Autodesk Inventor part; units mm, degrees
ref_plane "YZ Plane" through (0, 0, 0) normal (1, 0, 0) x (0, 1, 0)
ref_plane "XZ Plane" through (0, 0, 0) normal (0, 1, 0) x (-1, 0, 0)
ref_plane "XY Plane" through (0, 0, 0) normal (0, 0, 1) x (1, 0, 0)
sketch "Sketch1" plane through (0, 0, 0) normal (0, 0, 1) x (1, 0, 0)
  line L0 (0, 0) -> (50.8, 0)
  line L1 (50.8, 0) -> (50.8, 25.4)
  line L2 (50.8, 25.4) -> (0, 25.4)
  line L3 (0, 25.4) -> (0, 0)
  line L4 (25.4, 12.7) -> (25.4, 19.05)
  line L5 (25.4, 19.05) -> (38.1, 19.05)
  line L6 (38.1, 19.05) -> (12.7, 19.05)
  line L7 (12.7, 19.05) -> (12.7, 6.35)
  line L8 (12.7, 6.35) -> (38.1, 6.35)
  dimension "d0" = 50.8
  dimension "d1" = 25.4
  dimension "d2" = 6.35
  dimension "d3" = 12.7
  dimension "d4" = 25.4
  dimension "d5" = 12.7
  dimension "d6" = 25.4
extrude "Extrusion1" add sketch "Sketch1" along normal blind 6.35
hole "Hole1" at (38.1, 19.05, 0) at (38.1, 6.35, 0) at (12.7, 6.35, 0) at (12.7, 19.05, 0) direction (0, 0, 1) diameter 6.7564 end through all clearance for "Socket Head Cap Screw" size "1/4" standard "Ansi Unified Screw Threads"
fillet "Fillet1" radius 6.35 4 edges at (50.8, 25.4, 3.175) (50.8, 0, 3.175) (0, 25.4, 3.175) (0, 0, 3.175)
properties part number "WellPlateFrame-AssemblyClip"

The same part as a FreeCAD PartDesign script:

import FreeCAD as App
import Part
import Sketcher
Q = App.Units.Quantity


def edges_at(feature, points):
    """Names of the edges that pass closest to the given points."""
    edges = feature.Shape.Edges
    near = lambda p: min(range(len(edges)), key=lambda i: edges[i].distToShape(Part.Vertex(*p))[0])
    return sorted({f"Edge{near(p) + 1}" for p in points})


def add_polygon(sketch, points):
    """Adds a closed chain of lines whose ends are joined by coincident constraints."""
    first, n = sketch.GeometryCount, len(points)
    for a, b in zip(points, points[1:] + points[:1]):
        sketch.addGeometry(Part.LineSegment(App.Vector(*a, 0), App.Vector(*b, 0)), False)
    for i in range(n):
        sketch.addConstraint(Sketcher.Constraint("Coincident", first + i, 2, first + (i + 1) % n, 1))

doc = App.newDocument("Part")
params = doc.addObject("Spreadsheet::Sheet", "Params")
for row, (alias, value) in enumerate([
    ("sketch1_width", "2 in"),
    ("sketch1_height", "1 in"),
    ("pad1_length", "0.25 in"),
    ("sketch2_diameter", "0.266 in"),
    ("hole_diameter", "0.266 in"),
    ("fillet_radius", "0.25 in"),
], start=1):
    params.set(f"A{row}", alias)
    params.set(f"B{row}", "=" + value)
    params.setAlias(f"B{row}", alias)

body = doc.addObject("PartDesign::Body", "Body")

# Sketch on XY plane
sketch1 = doc.addObject("Sketcher::SketchObject", "Sketch")
body.addObject(sketch1)
sketch1.AttachmentSupport = (doc.XY_Plane, [""])
sketch1.MapMode = "FlatFace"
add_polygon(sketch1, [(0, 25), (0, 0), (51, 0), (51, 25)])  # lines 0-3
sketch1.addConstraint([
    Sketcher.Constraint("Vertical", 0),
    Sketcher.Constraint("Horizontal", 1),
    Sketcher.Constraint("Vertical", 2),
    Sketcher.Constraint("Horizontal", 3),
    Sketcher.Constraint("Coincident", 0, 2, -1, 1),
    Sketcher.Constraint("DistanceX", 1, 1, 1, 2, Q("2 in")),
    Sketcher.Constraint("DistanceY", 0, 2, 0, 1, Q("1 in")),
])
sketch1.setExpression("Constraints[9]", "Params.sketch1_width")
sketch1.setExpression("Constraints[10]", "Params.sketch1_height")
pad1 = doc.addObject("PartDesign::Pad", "Pad")
body.addObject(pad1)
pad1.Profile = sketch1
pad1.setExpression("Length", "Params.pad1_length")

# Sketch on XY plane
sketch2 = doc.addObject("Sketcher::SketchObject", "Sketch001")
body.addObject(sketch2)
sketch2.AttachmentSupport = (doc.XY_Plane, [""])
sketch2.MapMode = "FlatFace"
sketch2.addGeometry([
    Part.Circle(App.Vector(38.1, 19.1, 0), App.Vector(0, 0, 1), 3.4),
    Part.Circle(App.Vector(38.1, 6.3, 0), App.Vector(0, 0, 1), 3.4),
    Part.Circle(App.Vector(12.7, 6.3, 0), App.Vector(0, 0, 1), 3.4),
    Part.Circle(App.Vector(12.7, 19.1, 0), App.Vector(0, 0, 1), 3.4),
], False)
sketch2.addConstraint([
    Sketcher.Constraint("Equal", 0, 1),
    Sketcher.Constraint("Equal", 1, 2),
    Sketcher.Constraint("Equal", 2, 3),
    Sketcher.Constraint("Horizontal", 1, 3, 2, 3),
    Sketcher.Constraint("Horizontal", 0, 3, 3, 3),
    Sketcher.Constraint("Vertical", 0, 3, 1, 3),
    Sketcher.Constraint("Vertical", 2, 3, 3, 3),
    Sketcher.Constraint("Diameter", 0, Q("0.266 in")),
    Sketcher.Constraint("DistanceX", 2, 3, 1, 3, Q("1 in")),
    Sketcher.Constraint("DistanceX", -1, 1, 0, 3, Q("1.5 in")),
    Sketcher.Constraint("DistanceY", 1, 3, 0, 3, Q("0.5 in")),
    Sketcher.Constraint("DistanceY", -1, 1, 0, 3, Q("0.75 in")),
])
sketch2.setExpression("Constraints[7]", "Params.sketch2_diameter")
doc.recompute()
hole = doc.addObject("PartDesign::Hole", "Hole")
body.addObject(hole)
hole.Profile = sketch2
hole.ThreadType = "None"
hole.setExpression("Diameter", "Params.hole_diameter")
hole.DepthType = "ThroughAll"
hole.Reversed = True
doc.recompute()

fillet = doc.addObject("PartDesign::Fillet", "Fillet")
body.addObject(fillet)
fillet.Base = (hole, edges_at(hole, [
    (50.8, 25.4, 3.175),
    (50.8, 0, 3.175),
    (0, 25.4, 3.175),
    (0, 0, 3.175),
]))
fillet.setExpression("Radius", "Params.fillet_radius")

doc.recompute()
